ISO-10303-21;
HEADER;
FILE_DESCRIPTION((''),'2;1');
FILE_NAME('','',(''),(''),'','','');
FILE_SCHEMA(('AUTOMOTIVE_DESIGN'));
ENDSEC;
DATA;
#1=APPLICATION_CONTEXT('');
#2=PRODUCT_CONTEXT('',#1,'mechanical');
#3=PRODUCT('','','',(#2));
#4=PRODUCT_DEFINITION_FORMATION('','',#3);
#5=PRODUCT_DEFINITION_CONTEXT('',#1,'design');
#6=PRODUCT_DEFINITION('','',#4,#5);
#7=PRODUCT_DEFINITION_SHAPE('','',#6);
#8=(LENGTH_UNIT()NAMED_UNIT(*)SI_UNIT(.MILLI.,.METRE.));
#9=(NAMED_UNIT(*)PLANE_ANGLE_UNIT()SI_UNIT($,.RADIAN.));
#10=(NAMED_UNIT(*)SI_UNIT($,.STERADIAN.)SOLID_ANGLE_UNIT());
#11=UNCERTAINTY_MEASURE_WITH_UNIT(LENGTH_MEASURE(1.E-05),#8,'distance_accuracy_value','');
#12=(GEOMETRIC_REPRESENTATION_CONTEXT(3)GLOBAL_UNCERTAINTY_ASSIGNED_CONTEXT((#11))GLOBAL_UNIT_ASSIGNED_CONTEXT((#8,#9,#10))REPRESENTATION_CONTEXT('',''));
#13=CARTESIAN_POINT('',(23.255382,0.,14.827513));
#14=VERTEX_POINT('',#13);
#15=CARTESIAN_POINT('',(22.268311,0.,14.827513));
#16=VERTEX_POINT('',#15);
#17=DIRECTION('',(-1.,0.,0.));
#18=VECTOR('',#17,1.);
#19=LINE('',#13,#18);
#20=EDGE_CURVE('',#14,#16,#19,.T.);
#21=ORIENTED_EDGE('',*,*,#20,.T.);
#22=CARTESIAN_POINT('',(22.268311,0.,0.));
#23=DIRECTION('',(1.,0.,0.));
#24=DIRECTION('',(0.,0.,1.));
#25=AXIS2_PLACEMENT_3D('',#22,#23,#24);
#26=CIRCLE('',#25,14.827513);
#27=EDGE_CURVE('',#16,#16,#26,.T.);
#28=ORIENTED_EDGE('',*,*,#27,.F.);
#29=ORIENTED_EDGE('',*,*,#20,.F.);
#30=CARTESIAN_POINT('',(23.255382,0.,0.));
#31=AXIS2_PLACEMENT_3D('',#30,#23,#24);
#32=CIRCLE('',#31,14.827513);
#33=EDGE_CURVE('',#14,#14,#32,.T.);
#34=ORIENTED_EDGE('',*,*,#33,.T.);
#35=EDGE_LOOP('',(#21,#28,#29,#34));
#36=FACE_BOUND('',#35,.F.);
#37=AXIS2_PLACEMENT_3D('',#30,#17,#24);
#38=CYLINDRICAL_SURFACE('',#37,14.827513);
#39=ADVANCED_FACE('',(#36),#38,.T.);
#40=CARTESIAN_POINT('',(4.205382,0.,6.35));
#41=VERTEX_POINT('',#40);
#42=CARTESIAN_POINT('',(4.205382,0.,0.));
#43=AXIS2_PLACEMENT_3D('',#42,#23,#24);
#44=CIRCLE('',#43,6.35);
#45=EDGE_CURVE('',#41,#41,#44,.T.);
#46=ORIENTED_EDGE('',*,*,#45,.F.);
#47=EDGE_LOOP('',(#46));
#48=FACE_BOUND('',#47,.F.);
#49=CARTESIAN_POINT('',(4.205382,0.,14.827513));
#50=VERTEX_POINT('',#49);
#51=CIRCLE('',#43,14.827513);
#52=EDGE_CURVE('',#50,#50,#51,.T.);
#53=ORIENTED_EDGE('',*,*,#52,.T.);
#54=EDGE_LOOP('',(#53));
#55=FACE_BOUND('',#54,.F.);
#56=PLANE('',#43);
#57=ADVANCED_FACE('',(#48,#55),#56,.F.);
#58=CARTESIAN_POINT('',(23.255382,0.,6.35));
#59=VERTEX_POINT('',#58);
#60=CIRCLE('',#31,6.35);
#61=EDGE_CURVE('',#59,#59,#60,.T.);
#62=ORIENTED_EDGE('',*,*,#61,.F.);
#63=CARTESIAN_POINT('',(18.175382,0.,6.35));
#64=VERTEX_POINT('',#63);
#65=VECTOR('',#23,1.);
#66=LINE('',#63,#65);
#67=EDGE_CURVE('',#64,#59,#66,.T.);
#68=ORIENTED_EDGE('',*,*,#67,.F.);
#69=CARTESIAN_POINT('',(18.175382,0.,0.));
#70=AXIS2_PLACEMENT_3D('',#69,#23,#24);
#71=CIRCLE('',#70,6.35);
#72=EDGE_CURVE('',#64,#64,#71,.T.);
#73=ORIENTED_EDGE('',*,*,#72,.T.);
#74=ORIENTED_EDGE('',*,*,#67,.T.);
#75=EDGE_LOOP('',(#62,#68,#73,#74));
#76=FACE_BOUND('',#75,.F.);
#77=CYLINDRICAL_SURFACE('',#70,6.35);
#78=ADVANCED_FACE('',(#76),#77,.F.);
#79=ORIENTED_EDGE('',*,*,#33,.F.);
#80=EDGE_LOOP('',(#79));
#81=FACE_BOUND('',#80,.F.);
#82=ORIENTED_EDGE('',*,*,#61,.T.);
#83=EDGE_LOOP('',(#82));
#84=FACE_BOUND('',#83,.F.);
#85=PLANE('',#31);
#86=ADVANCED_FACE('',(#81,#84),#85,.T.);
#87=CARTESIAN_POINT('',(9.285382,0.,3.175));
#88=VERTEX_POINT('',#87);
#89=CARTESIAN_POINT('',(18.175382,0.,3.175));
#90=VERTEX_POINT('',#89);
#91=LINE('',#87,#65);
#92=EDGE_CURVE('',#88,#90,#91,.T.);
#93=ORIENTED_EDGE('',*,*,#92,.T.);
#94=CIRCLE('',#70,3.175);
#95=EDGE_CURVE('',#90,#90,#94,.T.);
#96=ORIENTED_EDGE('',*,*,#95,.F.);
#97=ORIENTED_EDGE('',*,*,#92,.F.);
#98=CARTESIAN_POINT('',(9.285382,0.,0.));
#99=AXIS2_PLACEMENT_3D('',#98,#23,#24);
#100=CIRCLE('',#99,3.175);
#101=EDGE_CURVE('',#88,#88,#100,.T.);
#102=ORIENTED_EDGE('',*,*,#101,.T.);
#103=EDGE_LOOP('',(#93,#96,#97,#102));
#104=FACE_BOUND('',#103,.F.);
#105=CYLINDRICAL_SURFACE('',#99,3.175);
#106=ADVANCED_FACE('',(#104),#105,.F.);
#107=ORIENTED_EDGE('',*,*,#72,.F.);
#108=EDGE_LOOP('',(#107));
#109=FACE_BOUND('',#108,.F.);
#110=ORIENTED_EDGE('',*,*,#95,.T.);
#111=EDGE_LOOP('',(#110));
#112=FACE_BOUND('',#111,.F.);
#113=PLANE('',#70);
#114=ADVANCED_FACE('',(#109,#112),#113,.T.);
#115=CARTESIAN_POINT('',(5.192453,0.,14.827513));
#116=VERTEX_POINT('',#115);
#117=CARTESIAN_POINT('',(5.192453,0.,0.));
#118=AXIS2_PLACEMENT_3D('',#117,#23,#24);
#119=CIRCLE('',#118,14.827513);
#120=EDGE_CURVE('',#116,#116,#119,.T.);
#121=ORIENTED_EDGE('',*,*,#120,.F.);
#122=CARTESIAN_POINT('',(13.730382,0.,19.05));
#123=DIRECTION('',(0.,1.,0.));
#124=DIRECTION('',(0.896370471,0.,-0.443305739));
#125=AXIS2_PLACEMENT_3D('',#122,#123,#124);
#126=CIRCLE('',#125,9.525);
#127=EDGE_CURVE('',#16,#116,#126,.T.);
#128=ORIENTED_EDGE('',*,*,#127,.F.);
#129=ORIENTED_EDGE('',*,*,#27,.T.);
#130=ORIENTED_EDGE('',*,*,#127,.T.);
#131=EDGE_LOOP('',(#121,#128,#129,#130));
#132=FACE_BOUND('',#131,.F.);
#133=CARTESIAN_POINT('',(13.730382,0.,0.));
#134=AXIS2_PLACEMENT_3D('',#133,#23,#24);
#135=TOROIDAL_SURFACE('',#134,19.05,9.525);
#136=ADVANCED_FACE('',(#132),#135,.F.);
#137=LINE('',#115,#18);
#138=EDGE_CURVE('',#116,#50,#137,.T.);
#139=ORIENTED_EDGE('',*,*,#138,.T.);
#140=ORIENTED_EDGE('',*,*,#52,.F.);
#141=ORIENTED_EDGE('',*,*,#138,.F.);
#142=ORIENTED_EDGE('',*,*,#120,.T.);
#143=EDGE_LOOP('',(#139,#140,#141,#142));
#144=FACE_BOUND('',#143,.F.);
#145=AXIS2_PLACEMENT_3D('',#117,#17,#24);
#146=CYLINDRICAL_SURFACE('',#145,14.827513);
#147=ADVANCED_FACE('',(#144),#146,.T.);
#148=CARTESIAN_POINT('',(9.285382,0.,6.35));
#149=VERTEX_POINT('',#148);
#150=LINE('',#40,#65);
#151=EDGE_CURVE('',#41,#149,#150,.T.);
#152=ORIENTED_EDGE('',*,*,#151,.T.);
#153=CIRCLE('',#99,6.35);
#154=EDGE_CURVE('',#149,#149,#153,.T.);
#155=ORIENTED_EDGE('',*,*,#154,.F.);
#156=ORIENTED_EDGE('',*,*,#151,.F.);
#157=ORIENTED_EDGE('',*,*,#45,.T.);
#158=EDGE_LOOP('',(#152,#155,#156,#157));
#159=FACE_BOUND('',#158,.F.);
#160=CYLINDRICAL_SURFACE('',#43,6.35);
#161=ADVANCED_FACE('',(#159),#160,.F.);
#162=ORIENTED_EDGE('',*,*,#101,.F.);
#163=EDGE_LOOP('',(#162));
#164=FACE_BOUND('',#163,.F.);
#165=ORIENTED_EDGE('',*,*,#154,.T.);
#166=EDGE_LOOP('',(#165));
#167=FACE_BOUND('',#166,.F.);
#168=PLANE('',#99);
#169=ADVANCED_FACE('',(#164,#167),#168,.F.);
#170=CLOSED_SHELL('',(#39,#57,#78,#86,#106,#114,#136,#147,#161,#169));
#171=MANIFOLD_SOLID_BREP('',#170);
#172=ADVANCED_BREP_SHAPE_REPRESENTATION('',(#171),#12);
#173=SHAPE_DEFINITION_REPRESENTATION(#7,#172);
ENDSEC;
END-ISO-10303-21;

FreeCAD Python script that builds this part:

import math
import FreeCAD as App
import Part
import Sketcher
Q = App.Units.Quantity

doc = App.newDocument("Part")
body = doc.addObject("PartDesign::Body", "Body")

sketch1 = body.newObject("Sketcher::SketchObject", "Sketch")
sketch1.AttachmentSupport = (doc.getObject("XZ_Plane"), [""])
sketch1.MapMode = "FlatFace"
sketch1.addGeometry([
    Part.LineSegment(App.Vector(9.285382, 6.35, 0), App.Vector(9.285382, 3.175, 0)),
    Part.LineSegment(App.Vector(9.285382, 3.175, 0), App.Vector(18.175382, 3.175, 0)),
    Part.LineSegment(App.Vector(18.175382, 3.175, 0), App.Vector(18.175382, 6.35, 0)),
    Part.LineSegment(App.Vector(18.175382, 6.35, 0), App.Vector(23.255382, 6.35, 0)),
    Part.LineSegment(App.Vector(23.255382, 6.35, 0), App.Vector(23.255382, 14.827513, 0)),
    Part.LineSegment(App.Vector(23.255382, 14.827513, 0), App.Vector(22.268311, 14.827513, 0)),
    Part.ArcOfCircle(Part.Circle(App.Vector(13.730382, 19.05, 0), App.Vector(0, 0, 1), 9.525), math.radians(-153.685009), math.radians(-26.314991)),
    Part.LineSegment(App.Vector(5.192453, 14.827513, 0), App.Vector(4.205382, 14.827513, 0)),
    Part.LineSegment(App.Vector(4.205382, 14.827513, 0), App.Vector(4.205382, 6.35, 0)),
    Part.LineSegment(App.Vector(4.205382, 6.35, 0), App.Vector(9.285382, 6.35, 0)),
], False)
sketch1.addConstraint([
    Sketcher.Constraint("Coincident", 0, 2, 1, 1),
    Sketcher.Constraint("Coincident", 1, 2, 2, 1),
    Sketcher.Constraint("Coincident", 2, 2, 3, 1),
    Sketcher.Constraint("Coincident", 3, 2, 4, 1),
    Sketcher.Constraint("Coincident", 4, 2, 5, 1),
    Sketcher.Constraint("Coincident", 5, 2, 6, 2),
    Sketcher.Constraint("Coincident", 6, 1, 7, 1),
    Sketcher.Constraint("Coincident", 7, 2, 8, 1),
    Sketcher.Constraint("Coincident", 8, 2, 9, 1),
    Sketcher.Constraint("Coincident", 9, 2, 0, 1),
    Sketcher.Constraint("Vertical", 0),
    Sketcher.Constraint("Horizontal", 1),
    Sketcher.Constraint("Vertical", 2),
    Sketcher.Constraint("Horizontal", 3),
    Sketcher.Constraint("Vertical", 4),
    Sketcher.Constraint("Horizontal", 5),
    Sketcher.Constraint("Horizontal", 7),
    Sketcher.Constraint("Vertical", 8),
    Sketcher.Constraint("Horizontal", 9),
    Sketcher.Constraint("Horizontal", 5, 2, 6, 1),
    Sketcher.Constraint("Horizontal", 3, 2, 8, 2),
    Sketcher.Constraint("Equal", 5, 7),
    Sketcher.Constraint("Equal", 3, 9),
    Sketcher.Constraint("DistanceX", 3, 1, 3, 2, Q("0.2 in")),
    Sketcher.Constraint("Radius", 6, Q("0.375 in")),
    Sketcher.Constraint("DistanceX", 1, 1, 1, 2, Q("0.35 in")),
    Sketcher.Constraint("DistanceY", 2, 2, 6, 3, Q("0.5 in")),
    Sketcher.Constraint("DistanceY", 0, 2, 0, 1, Q("0.125 in")),
    Sketcher.Constraint("DistanceY", -1, 1, 6, 3, Q("0.75 in")),
    Sketcher.Constraint("DistanceX", 5, 2, 5, 1, Q("0.987071 mm")),
    Sketcher.Constraint("DistanceX", -1, 1, 1, 2, Q("18.175382 mm")),
])
revolution = body.newObject("PartDesign::Revolution", "Revolution")
revolution.Profile = sketch1
revolution.ReferenceAxis = (sketch1, ["H_Axis"])
revolution.Angle = 360

doc.recompute()
